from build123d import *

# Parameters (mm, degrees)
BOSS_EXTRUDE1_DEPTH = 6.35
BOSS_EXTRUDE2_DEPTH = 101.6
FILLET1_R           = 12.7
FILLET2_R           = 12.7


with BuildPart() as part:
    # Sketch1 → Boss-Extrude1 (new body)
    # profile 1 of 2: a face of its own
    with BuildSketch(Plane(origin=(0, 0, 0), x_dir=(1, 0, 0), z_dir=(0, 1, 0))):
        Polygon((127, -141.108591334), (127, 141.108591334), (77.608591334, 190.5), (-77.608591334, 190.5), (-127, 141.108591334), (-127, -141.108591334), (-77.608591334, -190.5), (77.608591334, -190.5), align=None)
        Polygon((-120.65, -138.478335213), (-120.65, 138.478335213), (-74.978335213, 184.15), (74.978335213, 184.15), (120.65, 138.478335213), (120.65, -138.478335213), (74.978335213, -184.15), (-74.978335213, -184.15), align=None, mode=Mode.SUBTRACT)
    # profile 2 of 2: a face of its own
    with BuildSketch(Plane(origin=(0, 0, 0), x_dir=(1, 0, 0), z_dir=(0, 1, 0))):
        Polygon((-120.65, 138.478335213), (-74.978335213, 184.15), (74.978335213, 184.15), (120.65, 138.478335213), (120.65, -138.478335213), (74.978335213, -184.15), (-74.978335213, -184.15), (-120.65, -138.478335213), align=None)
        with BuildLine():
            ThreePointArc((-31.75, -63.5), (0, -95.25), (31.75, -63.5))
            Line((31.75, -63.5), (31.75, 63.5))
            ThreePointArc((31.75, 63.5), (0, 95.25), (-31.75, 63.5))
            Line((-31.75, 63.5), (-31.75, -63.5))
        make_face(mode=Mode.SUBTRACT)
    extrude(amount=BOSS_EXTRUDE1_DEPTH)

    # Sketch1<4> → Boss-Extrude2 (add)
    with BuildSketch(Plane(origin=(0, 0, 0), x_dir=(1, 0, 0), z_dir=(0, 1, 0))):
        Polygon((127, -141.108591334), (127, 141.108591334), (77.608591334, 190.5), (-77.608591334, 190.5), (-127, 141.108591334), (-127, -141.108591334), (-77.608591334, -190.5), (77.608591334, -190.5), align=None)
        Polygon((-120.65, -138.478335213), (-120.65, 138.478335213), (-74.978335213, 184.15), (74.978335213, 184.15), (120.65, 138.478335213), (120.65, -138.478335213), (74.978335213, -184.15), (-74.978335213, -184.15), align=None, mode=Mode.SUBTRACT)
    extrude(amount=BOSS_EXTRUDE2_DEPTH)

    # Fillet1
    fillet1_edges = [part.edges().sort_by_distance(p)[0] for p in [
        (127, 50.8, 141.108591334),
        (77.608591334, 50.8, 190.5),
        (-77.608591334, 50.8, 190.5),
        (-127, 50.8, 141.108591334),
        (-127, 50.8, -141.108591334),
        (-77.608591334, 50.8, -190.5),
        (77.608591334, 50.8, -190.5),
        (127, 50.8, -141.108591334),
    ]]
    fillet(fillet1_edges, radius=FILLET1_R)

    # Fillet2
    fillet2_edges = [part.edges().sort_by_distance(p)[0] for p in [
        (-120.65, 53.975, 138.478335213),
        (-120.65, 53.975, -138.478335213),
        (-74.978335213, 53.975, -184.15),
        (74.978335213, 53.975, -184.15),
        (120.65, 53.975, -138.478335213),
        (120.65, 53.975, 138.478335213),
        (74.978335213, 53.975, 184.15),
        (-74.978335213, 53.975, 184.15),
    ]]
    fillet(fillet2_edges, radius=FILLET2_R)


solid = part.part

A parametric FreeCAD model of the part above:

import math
import FreeCAD as App
import Part
import Sketcher
from FreeCAD import Vector
Q = App.Units.Quantity


def edges_at(feature, points):
    """Names of the edges that pass closest to the given points."""
    edges = feature.Shape.Edges
    near = lambda p: min(range(len(edges)), key=lambda i: edges[i].distToShape(Part.Vertex(*p))[0])
    return sorted({f"Edge{near(p) + 1}" for p in points})

doc = App.newDocument("Part")
body = doc.addObject("PartDesign::Body", "Body")

sketch1 = doc.addObject("Sketcher::SketchObject", "Sketch")
body.addObject(sketch1)
sketch1.AttachmentSupport = (doc.XZ_Plane, [""])
sketch1.MapMode = "FlatFace"
sketch1.addGeometry(Part.LineSegment(Vector(127, 141, 0), Vector(127, -141, 0)), False)
sketch1.addGeometry(Part.LineSegment(Vector(127, -141, 0), Vector(78, -190, 0)), False)
sketch1.addGeometry(Part.LineSegment(Vector(78, -190, 0), Vector(-78, -190, 0)), False)
sketch1.addGeometry(Part.LineSegment(Vector(-78, -190, 0), Vector(-127, -141, 0)), False)
sketch1.addGeometry(Part.LineSegment(Vector(-127, -141, 0), Vector(-127, 141, 0)), False)
sketch1.addGeometry(Part.LineSegment(Vector(-127, 141, 0), Vector(-78, 190, 0)), False)
sketch1.addGeometry(Part.LineSegment(Vector(-78, 190, 0), Vector(78, 190, 0)), False)
sketch1.addGeometry(Part.LineSegment(Vector(78, 190, 0), Vector(127, 141, 0)), False)
sketch1.addGeometry(Part.LineSegment(Vector(32, -64, 0), Vector(32, 64, 0)), False)
sketch1.addGeometry(Part.ArcOfCircle(Part.Circle(Vector(0, 64, 0), Vector(0, 0, 1), 32), math.radians(0), math.radians(180)), False)
sketch1.addGeometry(Part.LineSegment(Vector(-32, 64, 0), Vector(-32, -64, 0)), False)
sketch1.addGeometry(Part.ArcOfCircle(Part.Circle(Vector(0, -64, 0), Vector(0, 0, 1), 32), math.radians(180), math.radians(360)), False)
sketch1.addConstraint(Sketcher.Constraint("Coincident", 0, 2, 1, 1))
sketch1.addConstraint(Sketcher.Constraint("Coincident", 1, 2, 2, 1))
sketch1.addConstraint(Sketcher.Constraint("Coincident", 2, 2, 3, 1))
sketch1.addConstraint(Sketcher.Constraint("Coincident", 3, 2, 4, 1))
sketch1.addConstraint(Sketcher.Constraint("Coincident", 4, 2, 5, 1))
sketch1.addConstraint(Sketcher.Constraint("Coincident", 5, 2, 6, 1))
sketch1.addConstraint(Sketcher.Constraint("Coincident", 6, 2, 7, 1))
sketch1.addConstraint(Sketcher.Constraint("Coincident", 7, 2, 0, 1))
sketch1.addConstraint(Sketcher.Constraint("Tangent", 8, 2, 9, 1))
sketch1.addConstraint(Sketcher.Constraint("Tangent", 9, 2, 10, 1))
sketch1.addConstraint(Sketcher.Constraint("Tangent", 10, 2, 11, 1))
sketch1.addConstraint(Sketcher.Constraint("Tangent", 11, 2, 8, 1))
sketch1.addConstraint(Sketcher.Constraint("Vertical", 0))
sketch1.addConstraint(Sketcher.Constraint("Horizontal", 2))
sketch1.addConstraint(Sketcher.Constraint("Vertical", 4))
sketch1.addConstraint(Sketcher.Constraint("Horizontal", 6))
sketch1.addConstraint(Sketcher.Constraint("Vertical", 8))
sketch1.addConstraint(Sketcher.Constraint("Vertical", 10))
sketch1.addConstraint(Sketcher.Constraint("Symmetric", 9, 3, 11, 3, -1, 1))
sketch1.addConstraint(Sketcher.Constraint("Symmetric", 0, 2, 4, 2, -1, 1))
sketch1.addConstraint(Sketcher.Constraint("Symmetric", 1, 2, 5, 2, -1, 1))
sketch1.addConstraint(Sketcher.Constraint("Perpendicular", 1, 3))
sketch1.addConstraint(Sketcher.Constraint("Perpendicular", 5, 7))
sketch1.addConstraint(Sketcher.Constraint("Horizontal", 0, 2, 3, 2))
sketch1.addConstraint(Sketcher.Constraint("Horizontal", 4, 2, 7, 2))
sketch1.addConstraint(Sketcher.Constraint("Vertical", 2, 2, 5, 2))
sketch1.addConstraint(Sketcher.Constraint("DistanceY", 8, 1, 8, 2, Q("5 in")))
sketch1.addConstraint(Sketcher.Constraint("Radius", 9, Q("1.25 in")))
sketch1.addConstraint(Sketcher.Constraint("DistanceX", -1, 1, 0, 2, Q("5 in")))
sketch1.addConstraint(Sketcher.Constraint("DistanceY", 1, 2, 11, 3, Q("5 in")))
sketch1.addConstraint(Sketcher.Constraint("Distance", 1, Q("2.75 in")))
pad1 = doc.addObject("PartDesign::Pad", "Pad")
body.addObject(pad1)
pad1.Profile = sketch1
pad1.Length = Q("0.25 in")
pad1.Reversed = True

sketch2 = doc.addObject("Sketcher::SketchObject", "Sketch001")
body.addObject(sketch2)
sketch2.AttachmentSupport = (doc.XZ_Plane, [""])
sketch2.MapMode = "FlatFace"
sketch2.addGeometry(Part.LineSegment(Vector(127, 141, 0), Vector(127, -141, 0)), False)
sketch2.addGeometry(Part.LineSegment(Vector(127, -141, 0), Vector(78, -190, 0)), False)
sketch2.addGeometry(Part.LineSegment(Vector(78, -190, 0), Vector(-78, -190, 0)), False)
sketch2.addGeometry(Part.LineSegment(Vector(-78, -190, 0), Vector(-127, -141, 0)), False)
sketch2.addGeometry(Part.LineSegment(Vector(-127, -141, 0), Vector(-127, 141, 0)), False)
sketch2.addGeometry(Part.LineSegment(Vector(-127, 141, 0), Vector(-78, 190, 0)), False)
sketch2.addGeometry(Part.LineSegment(Vector(-78, 190, 0), Vector(78, 190, 0)), False)
sketch2.addGeometry(Part.LineSegment(Vector(78, 190, 0), Vector(127, 141, 0)), False)
sketch2.addGeometry(Part.LineSegment(Vector(-75, 184, 0), Vector(-121, 138, 0)), False)
sketch2.addGeometry(Part.LineSegment(Vector(-121, 138, 0), Vector(-121, -138, 0)), False)
sketch2.addGeometry(Part.LineSegment(Vector(-121, -138, 0), Vector(-75, -184, 0)), False)
sketch2.addGeometry(Part.LineSegment(Vector(-75, -184, 0), Vector(75, -184, 0)), False)
sketch2.addGeometry(Part.LineSegment(Vector(75, -184, 0), Vector(121, -138, 0)), False)
sketch2.addGeometry(Part.LineSegment(Vector(121, -138, 0), Vector(121, 138, 0)), False)
sketch2.addGeometry(Part.LineSegment(Vector(121, 138, 0), Vector(75, 184, 0)), False)
sketch2.addGeometry(Part.LineSegment(Vector(75, 184, 0), Vector(-75, 184, 0)), False)
sketch2.addConstraint(Sketcher.Constraint("Coincident", 0, 2, 1, 1))
sketch2.addConstraint(Sketcher.Constraint("Coincident", 1, 2, 2, 1))
sketch2.addConstraint(Sketcher.Constraint("Coincident", 2, 2, 3, 1))
sketch2.addConstraint(Sketcher.Constraint("Coincident", 3, 2, 4, 1))
sketch2.addConstraint(Sketcher.Constraint("Coincident", 4, 2, 5, 1))
sketch2.addConstraint(Sketcher.Constraint("Coincident", 5, 2, 6, 1))
sketch2.addConstraint(Sketcher.Constraint("Coincident", 6, 2, 7, 1))
sketch2.addConstraint(Sketcher.Constraint("Coincident", 7, 2, 0, 1))
sketch2.addConstraint(Sketcher.Constraint("Coincident", 8, 2, 9, 1))
sketch2.addConstraint(Sketcher.Constraint("Coincident", 9, 2, 10, 1))
sketch2.addConstraint(Sketcher.Constraint("Coincident", 10, 2, 11, 1))
sketch2.addConstraint(Sketcher.Constraint("Coincident", 11, 2, 12, 1))
sketch2.addConstraint(Sketcher.Constraint("Coincident", 12, 2, 13, 1))
sketch2.addConstraint(Sketcher.Constraint("Coincident", 13, 2, 14, 1))
sketch2.addConstraint(Sketcher.Constraint("Coincident", 14, 2, 15, 1))
sketch2.addConstraint(Sketcher.Constraint("Coincident", 15, 2, 8, 1))
sketch2.addConstraint(Sketcher.Constraint("Vertical", 0))
sketch2.addConstraint(Sketcher.Constraint("Horizontal", 2))
sketch2.addConstraint(Sketcher.Constraint("Vertical", 4))
sketch2.addConstraint(Sketcher.Constraint("Horizontal", 6))
sketch2.addConstraint(Sketcher.Constraint("Vertical", 9))
sketch2.addConstraint(Sketcher.Constraint("Horizontal", 11))
sketch2.addConstraint(Sketcher.Constraint("Vertical", 13))
sketch2.addConstraint(Sketcher.Constraint("Horizontal", 15))
sketch2.addConstraint(Sketcher.Constraint("Symmetric", 0, 2, 4, 2, -1, 1))
sketch2.addConstraint(Sketcher.Constraint("Symmetric", 1, 2, 5, 2, -1, 1))
sketch2.addConstraint(Sketcher.Constraint("Symmetric", 8, 2, 12, 2, -1, 1))
sketch2.addConstraint(Sketcher.Constraint("Symmetric", 10, 2, 14, 2, -1, 1))
sketch2.addConstraint(Sketcher.Constraint("Perpendicular", 1, 3))
sketch2.addConstraint(Sketcher.Constraint("Perpendicular", 5, 7))
sketch2.addConstraint(Sketcher.Constraint("Perpendicular", 7, 8))
sketch2.addConstraint(Sketcher.Constraint("Perpendicular", 8, 10))
sketch2.addConstraint(Sketcher.Constraint("Perpendicular", 10, 12))
sketch2.addConstraint(Sketcher.Constraint("Perpendicular", 12, 14))
sketch2.addConstraint(Sketcher.Constraint("Horizontal", 0, 2, 3, 2))
sketch2.addConstraint(Sketcher.Constraint("Horizontal", 4, 2, 7, 2))
sketch2.addConstraint(Sketcher.Constraint("Horizontal", 9, 2, 12, 2))
sketch2.addConstraint(Sketcher.Constraint("Vertical", 2, 2, 5, 2))
sketch2.addConstraint(Sketcher.Constraint("DistanceX", -1, 1, 0, 2, Q("5 in")))
sketch2.addConstraint(Sketcher.Constraint("DistanceY", 2, 2, 5, 2, Q("15 in")))
sketch2.addConstraint(Sketcher.Constraint("DistanceX", 8, 2, 13, 2, Q("9.5 in")))
sketch2.addConstraint(Sketcher.Constraint("Distance", 1, Q("2.75 in")))
sketch2.addConstraint(Sketcher.Constraint("DistanceY", 10, 2, -1, 1, Q("7.25 in")))
sketch2.addConstraint(Sketcher.Constraint("DistanceX", 11, 1, 11, 2, Q("149.95667 mm")))
pad2 = doc.addObject("PartDesign::Pad", "Pad001")
body.addObject(pad2)
pad2.Profile = sketch2
pad2.Length = Q("4 in")
pad2.Reversed = True
doc.recompute()

fillet = doc.addObject("PartDesign::Fillet", "Fillet")
body.addObject(fillet)
fillet.Base = (pad2, edges_at(pad2, [
    (127, 50.8, 141.109),
    (77.609, 50.8, 190.5),
    (-77.609, 50.8, 190.5),
    (-127, 50.8, 141.109),
    (-127, 50.8, -141.109),
    (-77.609, 50.8, -190.5),
    (77.609, 50.8, -190.5),
    (127, 50.8, -141.109),
]))
fillet.Radius = Q("0.5 in")
doc.recompute()

fillet2 = doc.addObject("PartDesign::Fillet", "Fillet001")
body.addObject(fillet2)
fillet2.Base = (fillet, edges_at(fillet, [
    (-120.65, 53.975, 138.478),
    (-120.65, 53.975, -138.478),
    (-74.978, 53.975, -184.15),
    (74.978, 53.975, -184.15),
    (120.65, 53.975, -138.478),
    (120.65, 53.975, 138.478),
    (74.978, 53.975, 184.15),
    (-74.978, 53.975, 184.15),
]))
fillet2.Radius = Q("0.5 in")

doc.recompute()
